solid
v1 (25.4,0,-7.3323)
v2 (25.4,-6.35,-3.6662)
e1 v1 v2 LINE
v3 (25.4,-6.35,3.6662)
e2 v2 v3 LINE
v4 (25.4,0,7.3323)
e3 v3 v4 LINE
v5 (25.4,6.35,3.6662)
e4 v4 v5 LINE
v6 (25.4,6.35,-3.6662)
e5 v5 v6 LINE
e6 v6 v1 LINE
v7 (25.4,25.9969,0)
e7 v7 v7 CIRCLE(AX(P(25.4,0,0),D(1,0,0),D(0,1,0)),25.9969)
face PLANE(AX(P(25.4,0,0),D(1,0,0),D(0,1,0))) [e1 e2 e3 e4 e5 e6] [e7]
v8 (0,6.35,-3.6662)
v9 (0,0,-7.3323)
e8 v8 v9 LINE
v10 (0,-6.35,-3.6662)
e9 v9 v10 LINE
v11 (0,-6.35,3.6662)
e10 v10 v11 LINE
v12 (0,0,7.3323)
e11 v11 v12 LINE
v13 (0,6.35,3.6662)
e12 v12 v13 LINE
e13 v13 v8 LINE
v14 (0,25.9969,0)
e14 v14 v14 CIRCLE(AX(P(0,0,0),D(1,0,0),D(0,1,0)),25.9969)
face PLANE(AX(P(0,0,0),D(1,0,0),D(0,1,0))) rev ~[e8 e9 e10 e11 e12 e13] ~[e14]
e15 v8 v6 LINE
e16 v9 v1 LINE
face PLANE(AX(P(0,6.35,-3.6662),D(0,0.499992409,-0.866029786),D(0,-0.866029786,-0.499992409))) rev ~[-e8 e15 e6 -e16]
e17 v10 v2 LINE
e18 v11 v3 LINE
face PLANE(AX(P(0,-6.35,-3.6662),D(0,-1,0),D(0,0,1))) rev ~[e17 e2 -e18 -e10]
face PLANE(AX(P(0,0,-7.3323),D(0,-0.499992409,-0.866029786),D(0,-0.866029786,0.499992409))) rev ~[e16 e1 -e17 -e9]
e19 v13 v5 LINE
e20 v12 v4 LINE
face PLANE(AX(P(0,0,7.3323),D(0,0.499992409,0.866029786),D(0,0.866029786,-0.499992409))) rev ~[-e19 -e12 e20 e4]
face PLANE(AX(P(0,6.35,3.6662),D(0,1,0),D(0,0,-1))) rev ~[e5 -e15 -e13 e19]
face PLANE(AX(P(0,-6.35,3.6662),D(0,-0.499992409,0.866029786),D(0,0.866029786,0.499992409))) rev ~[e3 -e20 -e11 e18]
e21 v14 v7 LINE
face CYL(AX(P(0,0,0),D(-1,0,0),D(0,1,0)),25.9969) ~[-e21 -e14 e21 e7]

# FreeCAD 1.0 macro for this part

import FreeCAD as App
import Part
import Sketcher

V = App.Vector
Q = App.Units.Quantity


def add_polygon(sketch, points):
    """Adds a closed chain of lines whose ends are joined by coincident constraints."""
    first, n = sketch.GeometryCount, len(points)
    for a, b in zip(points, points[1:] + points[:1]):
        sketch.addGeometry(Part.LineSegment(App.Vector(*a, 0), App.Vector(*b, 0)), False)
    for i in range(n):
        sketch.addConstraint(Sketcher.Constraint("Coincident", first + i, 2, first + (i + 1) % n, 1))

doc = App.newDocument("Part")
body = doc.addObject("PartDesign::Body", "Body")

# Sketch on YZ plane
sketch1 = body.newObject("Sketcher::SketchObject", "Sketch")
sketch1.AttachmentSupport = (doc.getObject("YZ_Plane"), [""])
sketch1.MapMode = "FlatFace"
sketch1.addGeometry(Part.Circle(V(0, 0, 0), V(0, 0, 1), 26), False)  # 0
add_polygon(sketch1, [(0, 7), (6, 4), (6, -4), (0, -7), (-6, -4), (-6, 4)])  # lines 1-6
sketch1.addConstraint([
    Sketcher.Constraint("Vertical", 2),
    Sketcher.Constraint("Vertical", 5),
    Sketcher.Constraint("Coincident", 0, 3, -1, 1),
    Sketcher.Constraint("Symmetric", 1, 2, 4, 2, -1, 1),
    Sketcher.Constraint("Symmetric", 3, 2, 6, 2, -1, 1),
    Sketcher.Constraint("PointOnObject", 3, 2, -2),
    Sketcher.Constraint("Parallel", 3, 6),
    Sketcher.Constraint("Horizontal", 2, 2, 4, 2),
    Sketcher.Constraint("Diameter", 0, Q("2.047 in")),
    Sketcher.Constraint("DistanceX", 4, 2, 2, 2, Q("0.5 in")),
    Sketcher.Constraint("Angle", 1, Q("-29.9995 deg")),
    Sketcher.Constraint("DistanceY", 3, 2, 1, 2, Q("0.433 in")),
])
pad1 = body.newObject("PartDesign::Pad", "Pad")
pad1.Profile = sketch1
pad1.Length = Q("1 in")

doc.recompute()
